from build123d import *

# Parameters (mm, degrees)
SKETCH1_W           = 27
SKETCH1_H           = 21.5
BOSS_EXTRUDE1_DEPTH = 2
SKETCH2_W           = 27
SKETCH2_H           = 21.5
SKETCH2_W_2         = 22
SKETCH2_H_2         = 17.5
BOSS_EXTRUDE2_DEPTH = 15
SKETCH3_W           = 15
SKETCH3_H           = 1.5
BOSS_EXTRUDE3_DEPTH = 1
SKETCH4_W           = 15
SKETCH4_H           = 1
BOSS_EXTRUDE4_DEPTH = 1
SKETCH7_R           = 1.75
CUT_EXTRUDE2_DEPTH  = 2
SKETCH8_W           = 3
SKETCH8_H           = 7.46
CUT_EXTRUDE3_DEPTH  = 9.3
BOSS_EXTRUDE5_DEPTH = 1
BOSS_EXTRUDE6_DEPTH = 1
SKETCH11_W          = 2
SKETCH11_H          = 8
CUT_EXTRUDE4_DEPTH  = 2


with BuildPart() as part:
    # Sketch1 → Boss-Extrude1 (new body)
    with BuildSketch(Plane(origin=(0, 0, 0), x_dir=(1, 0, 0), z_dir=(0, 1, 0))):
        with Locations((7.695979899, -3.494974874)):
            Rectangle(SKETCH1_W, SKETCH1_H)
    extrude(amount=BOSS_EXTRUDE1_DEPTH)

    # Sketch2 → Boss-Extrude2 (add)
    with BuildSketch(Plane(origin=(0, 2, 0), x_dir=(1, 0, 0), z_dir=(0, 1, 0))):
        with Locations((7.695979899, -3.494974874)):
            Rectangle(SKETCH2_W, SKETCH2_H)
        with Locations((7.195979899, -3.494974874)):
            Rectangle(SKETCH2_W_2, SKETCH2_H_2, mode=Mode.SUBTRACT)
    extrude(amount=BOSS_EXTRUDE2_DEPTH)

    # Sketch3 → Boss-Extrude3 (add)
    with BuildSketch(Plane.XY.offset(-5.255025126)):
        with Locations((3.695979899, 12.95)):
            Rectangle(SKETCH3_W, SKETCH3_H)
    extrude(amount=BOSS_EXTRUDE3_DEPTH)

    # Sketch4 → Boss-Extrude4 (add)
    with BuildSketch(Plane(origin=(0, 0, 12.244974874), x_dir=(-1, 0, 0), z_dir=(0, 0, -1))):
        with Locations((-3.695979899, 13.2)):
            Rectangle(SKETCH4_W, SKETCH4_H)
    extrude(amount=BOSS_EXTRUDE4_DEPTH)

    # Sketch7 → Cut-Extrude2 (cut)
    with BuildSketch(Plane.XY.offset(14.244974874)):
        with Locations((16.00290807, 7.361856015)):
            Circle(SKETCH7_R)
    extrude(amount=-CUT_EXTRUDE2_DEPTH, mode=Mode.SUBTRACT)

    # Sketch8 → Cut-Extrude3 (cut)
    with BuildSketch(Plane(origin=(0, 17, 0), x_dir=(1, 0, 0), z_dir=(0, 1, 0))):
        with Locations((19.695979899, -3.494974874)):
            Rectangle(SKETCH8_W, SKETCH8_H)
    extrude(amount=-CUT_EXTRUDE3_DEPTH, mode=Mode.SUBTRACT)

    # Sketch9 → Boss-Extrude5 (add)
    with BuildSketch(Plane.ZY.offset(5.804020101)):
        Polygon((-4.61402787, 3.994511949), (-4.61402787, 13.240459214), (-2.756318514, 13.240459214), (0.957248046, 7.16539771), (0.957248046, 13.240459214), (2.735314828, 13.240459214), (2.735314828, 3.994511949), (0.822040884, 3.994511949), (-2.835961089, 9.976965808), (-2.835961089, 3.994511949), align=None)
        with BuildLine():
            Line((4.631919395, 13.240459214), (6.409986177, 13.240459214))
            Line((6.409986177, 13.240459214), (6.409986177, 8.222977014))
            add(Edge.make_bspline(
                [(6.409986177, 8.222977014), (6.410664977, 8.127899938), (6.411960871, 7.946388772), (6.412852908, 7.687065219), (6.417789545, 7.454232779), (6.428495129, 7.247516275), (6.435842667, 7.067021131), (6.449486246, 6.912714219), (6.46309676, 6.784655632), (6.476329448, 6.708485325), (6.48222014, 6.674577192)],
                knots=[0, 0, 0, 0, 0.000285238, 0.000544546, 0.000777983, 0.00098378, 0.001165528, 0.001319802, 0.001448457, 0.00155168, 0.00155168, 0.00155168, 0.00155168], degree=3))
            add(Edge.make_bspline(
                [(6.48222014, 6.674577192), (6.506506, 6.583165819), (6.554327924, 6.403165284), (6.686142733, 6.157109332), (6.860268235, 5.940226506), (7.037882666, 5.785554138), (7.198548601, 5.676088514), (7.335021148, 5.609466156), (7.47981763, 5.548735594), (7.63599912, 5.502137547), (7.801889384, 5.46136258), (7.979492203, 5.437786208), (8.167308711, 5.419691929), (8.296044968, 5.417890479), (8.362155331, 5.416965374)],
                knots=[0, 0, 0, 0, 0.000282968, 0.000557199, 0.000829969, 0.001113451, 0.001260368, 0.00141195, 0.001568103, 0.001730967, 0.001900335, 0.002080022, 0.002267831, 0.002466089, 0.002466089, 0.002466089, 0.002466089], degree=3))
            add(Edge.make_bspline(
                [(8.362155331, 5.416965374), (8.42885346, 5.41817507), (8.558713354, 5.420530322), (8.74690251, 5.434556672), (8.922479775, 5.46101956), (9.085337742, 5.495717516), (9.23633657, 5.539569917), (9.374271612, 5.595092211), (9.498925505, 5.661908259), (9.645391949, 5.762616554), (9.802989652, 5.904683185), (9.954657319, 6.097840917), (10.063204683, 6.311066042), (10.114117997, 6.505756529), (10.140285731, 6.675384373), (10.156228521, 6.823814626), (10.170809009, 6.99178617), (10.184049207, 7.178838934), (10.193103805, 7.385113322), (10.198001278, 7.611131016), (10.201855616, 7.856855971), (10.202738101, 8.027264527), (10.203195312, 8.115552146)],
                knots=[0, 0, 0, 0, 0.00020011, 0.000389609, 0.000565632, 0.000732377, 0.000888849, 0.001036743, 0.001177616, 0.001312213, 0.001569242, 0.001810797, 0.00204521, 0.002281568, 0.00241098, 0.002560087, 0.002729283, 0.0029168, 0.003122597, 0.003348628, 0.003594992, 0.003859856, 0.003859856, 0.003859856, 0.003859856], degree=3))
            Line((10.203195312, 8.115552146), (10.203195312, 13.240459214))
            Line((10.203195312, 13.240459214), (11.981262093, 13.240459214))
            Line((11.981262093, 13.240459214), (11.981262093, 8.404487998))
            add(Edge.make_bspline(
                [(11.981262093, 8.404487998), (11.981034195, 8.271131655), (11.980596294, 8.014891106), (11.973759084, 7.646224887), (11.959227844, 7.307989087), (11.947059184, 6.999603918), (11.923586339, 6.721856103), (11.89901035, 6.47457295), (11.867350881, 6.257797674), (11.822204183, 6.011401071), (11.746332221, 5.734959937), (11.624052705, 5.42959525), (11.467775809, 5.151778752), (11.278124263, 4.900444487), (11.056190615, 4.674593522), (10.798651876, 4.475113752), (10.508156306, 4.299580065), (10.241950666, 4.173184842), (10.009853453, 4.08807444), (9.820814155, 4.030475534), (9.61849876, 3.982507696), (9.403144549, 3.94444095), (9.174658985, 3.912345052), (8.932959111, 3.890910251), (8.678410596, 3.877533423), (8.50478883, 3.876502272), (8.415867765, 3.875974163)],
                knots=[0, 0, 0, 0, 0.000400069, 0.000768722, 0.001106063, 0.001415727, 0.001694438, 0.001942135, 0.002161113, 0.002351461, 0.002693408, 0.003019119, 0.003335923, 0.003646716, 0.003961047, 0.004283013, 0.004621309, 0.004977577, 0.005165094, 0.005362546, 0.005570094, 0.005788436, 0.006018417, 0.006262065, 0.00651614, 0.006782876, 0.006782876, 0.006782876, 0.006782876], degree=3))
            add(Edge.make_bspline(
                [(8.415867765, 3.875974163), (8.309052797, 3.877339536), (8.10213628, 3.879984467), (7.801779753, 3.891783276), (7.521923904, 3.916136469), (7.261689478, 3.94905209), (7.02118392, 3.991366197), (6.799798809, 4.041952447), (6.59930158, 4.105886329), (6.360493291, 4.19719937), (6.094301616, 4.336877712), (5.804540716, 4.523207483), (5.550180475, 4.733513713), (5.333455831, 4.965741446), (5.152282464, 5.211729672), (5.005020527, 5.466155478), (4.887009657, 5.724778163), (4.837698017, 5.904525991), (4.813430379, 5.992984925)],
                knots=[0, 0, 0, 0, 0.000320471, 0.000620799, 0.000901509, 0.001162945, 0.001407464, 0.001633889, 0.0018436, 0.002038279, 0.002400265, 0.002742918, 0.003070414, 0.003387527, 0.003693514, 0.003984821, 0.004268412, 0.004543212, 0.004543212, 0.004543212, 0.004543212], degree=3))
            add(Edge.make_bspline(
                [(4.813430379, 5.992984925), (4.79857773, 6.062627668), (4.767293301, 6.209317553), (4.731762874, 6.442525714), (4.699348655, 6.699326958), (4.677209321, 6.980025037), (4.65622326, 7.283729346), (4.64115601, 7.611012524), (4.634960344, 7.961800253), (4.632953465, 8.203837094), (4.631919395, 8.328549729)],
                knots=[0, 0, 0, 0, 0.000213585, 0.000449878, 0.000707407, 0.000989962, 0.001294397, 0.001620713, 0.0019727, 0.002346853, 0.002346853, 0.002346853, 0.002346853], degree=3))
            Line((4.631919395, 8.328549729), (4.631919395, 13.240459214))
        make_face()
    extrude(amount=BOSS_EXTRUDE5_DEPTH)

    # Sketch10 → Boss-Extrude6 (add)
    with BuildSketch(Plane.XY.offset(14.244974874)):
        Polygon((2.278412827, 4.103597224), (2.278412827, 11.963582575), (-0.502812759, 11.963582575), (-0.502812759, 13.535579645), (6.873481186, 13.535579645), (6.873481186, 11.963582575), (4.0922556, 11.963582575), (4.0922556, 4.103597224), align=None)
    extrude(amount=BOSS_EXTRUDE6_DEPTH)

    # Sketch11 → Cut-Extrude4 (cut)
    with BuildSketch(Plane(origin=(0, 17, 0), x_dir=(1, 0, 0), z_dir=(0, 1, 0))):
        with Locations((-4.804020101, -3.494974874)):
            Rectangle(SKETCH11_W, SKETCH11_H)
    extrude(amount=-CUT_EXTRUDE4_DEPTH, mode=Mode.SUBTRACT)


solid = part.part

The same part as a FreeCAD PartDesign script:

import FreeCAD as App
import Part
import Sketcher
from FreeCAD import Vector
Q = App.Units.Quantity

doc = App.newDocument("Part")
params = doc.addObject("Spreadsheet::Sheet", "Params")
for row, (alias, value) in enumerate([
    ("sketch1_width", "27 mm"),
    ("sketch1_height", "21.5 mm"),
    ("pad1_length", "2 mm"),
    ("sketch2_width", "27 mm"),
    ("sketch2_width2", "22 mm"),
    ("sketch2_height", "21.5 mm"),
    ("sketch2_height2", "17.5 mm"),
    ("pad2_length", "15 mm"),
    ("sketch3_width", "15 mm"),
    ("sketch3_height", "1.5 mm"),
    ("pad3_length", "1 mm"),
    ("sketch4_width", "15 mm"),
    ("sketch4_height", "1 mm"),
    ("pad4_length", "1 mm"),
    ("sketch5_diameter", "3.5 mm"),
    ("pocket1_length", "2 mm"),
    ("sketch6_width", "3 mm"),
    ("sketch6_height", "7.46 mm"),
    ("pocket2_length", "9.3 mm"),
    ("pad5_length", "1 mm"),
    ("pad6_length", "1 mm"),
    ("sketch9_width", "2 mm"),
    ("sketch9_height", "8 mm"),
    ("pocket3_length", "2 mm"),
], start=1):
    params.set(f"A{row}", alias)
    params.set(f"B{row}", "=" + value)
    params.setAlias(f"B{row}", alias)

body = doc.addObject("PartDesign::Body", "Body")

# Sketch on XZ plane
sketch1 = body.newObject("Sketcher::SketchObject", "Sketch")
sketch1.AttachmentSupport = (doc.getObject("XZ_Plane"), [""])
sketch1.MapMode = "FlatFace"
sketch1.addGeometry([
    Part.LineSegment(Vector(-6, -7, 0), Vector(-6, 14, 0)),
    Part.LineSegment(Vector(-6, 14, 0), Vector(21, 14, 0)),
    Part.LineSegment(Vector(21, 14, 0), Vector(21, -7, 0)),
    Part.LineSegment(Vector(21, -7, 0), Vector(-6, -7, 0)),
], False)
sketch1.addConstraint([
    Sketcher.Constraint("Coincident", 0, 2, 1, 1),
    Sketcher.Constraint("Coincident", 1, 2, 2, 1),
    Sketcher.Constraint("Coincident", 2, 2, 3, 1),
    Sketcher.Constraint("Coincident", 3, 2, 0, 1),
    Sketcher.Constraint("Vertical", 0),
    Sketcher.Constraint("Horizontal", 1),
    Sketcher.Constraint("Vertical", 2),
    Sketcher.Constraint("Horizontal", 3),
    Sketcher.Constraint("DistanceX", 1, 1, 1, 2, Q("27 mm")),
    Sketcher.Constraint("DistanceY", 0, 1, 0, 2, Q("21.5 mm")),
    Sketcher.Constraint("DistanceX", 0, 2, -1, 1, Q("5.80402 mm")),
    Sketcher.Constraint("DistanceY", -1, 1, 0, 2, Q("14.244975 mm")),
])
sketch1.setExpression("Constraints[8]", "Params.sketch1_width")
sketch1.setExpression("Constraints[9]", "Params.sketch1_height")
pad1 = body.newObject("PartDesign::Pad", "Pad")
pad1.Profile = sketch1
pad1.setExpression("Length", "Params.pad1_length")
pad1.Reversed = True

# Sketch on XZ plane
sketch2 = body.newObject("Sketcher::SketchObject", "Sketch001")
sketch2.AttachmentSupport = (doc.getObject("XZ_Plane"), [""])
sketch2.MapMode = "FlatFace"
sketch2.AttachmentOffset = App.Placement(Vector(0, 0, -2), App.Rotation())
sketch2.addGeometry([
    Part.LineSegment(Vector(-6, -7, 0), Vector(-6, 14, 0)),  # 0
    Part.LineSegment(Vector(-6, 14, 0), Vector(21, 14, 0)),  # 1
    Part.LineSegment(Vector(21, 14, 0), Vector(21, -7, 0)),  # 2
    Part.LineSegment(Vector(21, -7, 0), Vector(-6, -7, 0)),  # 3
    Part.LineSegment(Vector(18, 12, 0), Vector(-4, 12, 0)),  # 4
    Part.LineSegment(Vector(-4, 12, 0), Vector(-4, -5, 0)),  # 5
    Part.LineSegment(Vector(-4, -5, 0), Vector(18, -5, 0)),  # 6
    Part.LineSegment(Vector(18, -5, 0), Vector(18, 12, 0)),  # 7
], False)
sketch2.addConstraint([
    Sketcher.Constraint("Coincident", 0, 2, 1, 1),
    Sketcher.Constraint("Coincident", 1, 2, 2, 1),
    Sketcher.Constraint("Coincident", 2, 2, 3, 1),
    Sketcher.Constraint("Coincident", 3, 2, 0, 1),
    Sketcher.Constraint("Coincident", 4, 2, 5, 1),
    Sketcher.Constraint("Coincident", 5, 2, 6, 1),
    Sketcher.Constraint("Coincident", 6, 2, 7, 1),
    Sketcher.Constraint("Coincident", 7, 2, 4, 1),
    Sketcher.Constraint("Vertical", 0),
    Sketcher.Constraint("Horizontal", 1),
    Sketcher.Constraint("Vertical", 2),
    Sketcher.Constraint("Horizontal", 3),
    Sketcher.Constraint("Horizontal", 4),
    Sketcher.Constraint("Vertical", 5),
    Sketcher.Constraint("Horizontal", 6),
    Sketcher.Constraint("Vertical", 7),
    Sketcher.Constraint("DistanceX", 1, 1, 1, 2, Q("27 mm")),
    Sketcher.Constraint("DistanceX", 4, 2, 4, 1, Q("22 mm")),
    Sketcher.Constraint("DistanceY", 0, 1, 0, 2, Q("21.5 mm")),
    Sketcher.Constraint("DistanceY", 5, 2, 5, 1, Q("17.5 mm")),
    Sketcher.Constraint("DistanceX", 0, 2, 4, 2, Q("2 mm")),
    Sketcher.Constraint("DistanceY", 4, 2, 0, 2, Q("2 mm")),
    Sketcher.Constraint("DistanceX", 0, 2, -1, 1, Q("5.80402 mm")),
    Sketcher.Constraint("DistanceY", -1, 1, 0, 2, Q("14.244975 mm")),
])
sketch2.setExpression("Constraints[16]", "Params.sketch2_width")
sketch2.setExpression("Constraints[17]", "Params.sketch2_width2")
sketch2.setExpression("Constraints[18]", "Params.sketch2_height")
sketch2.setExpression("Constraints[19]", "Params.sketch2_height2")
pad2 = body.newObject("PartDesign::Pad", "Pad001")
pad2.Profile = sketch2
pad2.setExpression("Length", "Params.pad2_length")
pad2.Reversed = True

# Sketch on XY plane
sketch3 = body.newObject("Sketcher::SketchObject", "Sketch002")
sketch3.AttachmentSupport = (doc.getObject("XY_Plane"), [""])
sketch3.MapMode = "FlatFace"
sketch3.AttachmentOffset = App.Placement(Vector(0, 0, -5.255025), App.Rotation())
sketch3.addGeometry([
    Part.LineSegment(Vector(-3.8, 13.7, 0), Vector(-3.8, 12.2, 0)),
    Part.LineSegment(Vector(-3.8, 12.2, 0), Vector(11.2, 12.2, 0)),
    Part.LineSegment(Vector(11.2, 12.2, 0), Vector(11.2, 13.7, 0)),
    Part.LineSegment(Vector(11.2, 13.7, 0), Vector(-3.8, 13.7, 0)),
], False)
sketch3.addConstraint([
    Sketcher.Constraint("Coincident", 0, 2, 1, 1),
    Sketcher.Constraint("Coincident", 1, 2, 2, 1),
    Sketcher.Constraint("Coincident", 2, 2, 3, 1),
    Sketcher.Constraint("Coincident", 3, 2, 0, 1),
    Sketcher.Constraint("Vertical", 0),
    Sketcher.Constraint("Horizontal", 1),
    Sketcher.Constraint("Vertical", 2),
    Sketcher.Constraint("Horizontal", 3),
    Sketcher.Constraint("DistanceX", 1, 1, 1, 2, Q("15 mm")),
    Sketcher.Constraint("DistanceY", 0, 2, 0, 1, Q("1.5 mm")),
    Sketcher.Constraint("DistanceY", -1, 1, 0, 2, Q("12.2 mm")),
    Sketcher.Constraint("DistanceX", 0, 2, -1, 1, Q("3.80402 mm")),
])
sketch3.setExpression("Constraints[8]", "Params.sketch3_width")
sketch3.setExpression("Constraints[9]", "Params.sketch3_height")
pad3 = body.newObject("PartDesign::Pad", "Pad002")
pad3.Profile = sketch3
pad3.setExpression("Length", "Params.pad3_length")

# Sketch on XY plane
sketch4 = body.newObject("Sketcher::SketchObject", "Sketch003")
sketch4.AttachmentSupport = (doc.getObject("XY_Plane"), [""])
sketch4.MapMode = "FlatFace"
sketch4.AttachmentOffset = App.Placement(Vector(0, 0, 12.244975), App.Rotation())
sketch4.addGeometry([
    Part.LineSegment(Vector(11.2, 13.7, 0), Vector(11.2, 12.7, 0)),
    Part.LineSegment(Vector(11.2, 12.7, 0), Vector(-3.8, 12.7, 0)),
    Part.LineSegment(Vector(-3.8, 12.7, 0), Vector(-3.8, 13.7, 0)),
    Part.LineSegment(Vector(-3.8, 13.7, 0), Vector(11.2, 13.7, 0)),
], False)
sketch4.addConstraint([
    Sketcher.Constraint("Coincident", 0, 2, 1, 1),
    Sketcher.Constraint("Coincident", 1, 2, 2, 1),
    Sketcher.Constraint("Coincident", 2, 2, 3, 1),
    Sketcher.Constraint("Coincident", 3, 2, 0, 1),
    Sketcher.Constraint("Vertical", 0),
    Sketcher.Constraint("Horizontal", 1),
    Sketcher.Constraint("Vertical", 2),
    Sketcher.Constraint("Horizontal", 3),
    Sketcher.Constraint("DistanceX", 1, 2, 1, 1, Q("15 mm")),
    Sketcher.Constraint("DistanceY", 0, 2, 0, 1, Q("1 mm")),
    Sketcher.Constraint("DistanceY", -1, 1, 0, 2, Q("12.7 mm")),
    Sketcher.Constraint("DistanceX", -1, 1, 0, 2, Q("11.19598 mm")),
])
sketch4.setExpression("Constraints[8]", "Params.sketch4_width")
sketch4.setExpression("Constraints[9]", "Params.sketch4_height")
pad4 = body.newObject("PartDesign::Pad", "Pad003")
pad4.Profile = sketch4
pad4.setExpression("Length", "Params.pad4_length")
pad4.Reversed = True

# Sketch on XY plane
sketch5 = body.newObject("Sketcher::SketchObject", "Sketch004")
sketch5.AttachmentSupport = (doc.getObject("XY_Plane"), [""])
sketch5.MapMode = "FlatFace"
sketch5.AttachmentOffset = App.Placement(Vector(0, 0, 14.244975), App.Rotation())
sketch5.addGeometry(Part.Circle(Vector(16, 7.4, 0), Vector(0, 0, 1), 1.8), False)
sketch5.addConstraint([
    Sketcher.Constraint("Diameter", 0, Q("3.5 mm")),
    Sketcher.Constraint("DistanceX", -1, 1, 0, 3, Q("16.002908 mm")),
    Sketcher.Constraint("DistanceY", -1, 1, 0, 3, Q("7.361856 mm")),
])
sketch5.setExpression("Constraints[0]", "Params.sketch5_diameter")
pocket1 = body.newObject("PartDesign::Pocket", "Pocket")
pocket1.Profile = sketch5
pocket1.setExpression("Length", "Params.pocket1_length")

# Sketch on XZ plane
sketch6 = body.newObject("Sketcher::SketchObject", "Sketch005")
sketch6.AttachmentSupport = (doc.getObject("XZ_Plane"), [""])
sketch6.MapMode = "FlatFace"
sketch6.AttachmentOffset = App.Placement(Vector(0, 0, -17), App.Rotation())
sketch6.addGeometry([
    Part.LineSegment(Vector(18.2, -0.2, 0), Vector(18.2, 7.2, 0)),
    Part.LineSegment(Vector(18.2, 7.2, 0), Vector(21.2, 7.2, 0)),
    Part.LineSegment(Vector(21.2, 7.2, 0), Vector(21.2, -0.2, 0)),
    Part.LineSegment(Vector(21.2, -0.2, 0), Vector(18.2, -0.2, 0)),
], False)
sketch6.addConstraint([
    Sketcher.Constraint("Coincident", 0, 2, 1, 1),
    Sketcher.Constraint("Coincident", 1, 2, 2, 1),
    Sketcher.Constraint("Coincident", 2, 2, 3, 1),
    Sketcher.Constraint("Coincident", 3, 2, 0, 1),
    Sketcher.Constraint("Vertical", 0),
    Sketcher.Constraint("Horizontal", 1),
    Sketcher.Constraint("Vertical", 2),
    Sketcher.Constraint("Horizontal", 3),
    Sketcher.Constraint("DistanceX", 1, 1, 1, 2, Q("3 mm")),
    Sketcher.Constraint("DistanceY", 0, 1, 0, 2, Q("7.46 mm")),
    Sketcher.Constraint("DistanceX", -1, 1, 0, 2, Q("18.19598 mm")),
    Sketcher.Constraint("DistanceY", -1, 1, 0, 2, Q("7.224975 mm")),
])
sketch6.setExpression("Constraints[8]", "Params.sketch6_width")
sketch6.setExpression("Constraints[9]", "Params.sketch6_height")
pocket2 = body.newObject("PartDesign::Pocket", "Pocket001")
pocket2.Profile = sketch6
pocket2.setExpression("Length", "Params.pocket2_length")
pocket2.Reversed = True

# Sketch on YZ plane
sketch7 = body.newObject("Sketcher::SketchObject", "Sketch006")
sketch7.AttachmentSupport = (doc.getObject("YZ_Plane"), [""])
sketch7.MapMode = "FlatFace"
sketch7.AttachmentOffset = App.Placement(Vector(0, 0, -5.80402), App.Rotation())
sketch7.addGeometry([
    Part.LineSegment(Vector(13.240459, -4.614028, 0), Vector(3.994512, -4.614028, 0)),  # 0
    Part.LineSegment(Vector(3.994512, -4.614028, 0), Vector(3.994512, -2.835961, 0)),  # 1
    Part.LineSegment(Vector(3.994512, -2.835961, 0), Vector(9.976966, -2.835961, 0)),  # 2
    Part.LineSegment(Vector(9.976966, -2.835961, 0), Vector(3.994512, 0.822041, 0)),  # 3
    Part.LineSegment(Vector(3.994512, 0.822041, 0), Vector(3.994512, 2.735315, 0)),  # 4
    Part.LineSegment(Vector(3.994512, 2.735315, 0), Vector(13.240459, 2.735315, 0)),  # 5
    Part.LineSegment(Vector(13.240459, 2.735315, 0), Vector(13.240459, 0.957248, 0)),  # 6
    Part.LineSegment(Vector(13.240459, 0.957248, 0), Vector(7.165398, 0.957248, 0)),  # 7
    Part.LineSegment(Vector(7.165398, 0.957248, 0), Vector(13.240459, -2.756319, 0)),  # 8
    Part.LineSegment(Vector(13.240459, -2.756319, 0), Vector(13.240459, -4.614028, 0)),  # 9
    Part.LineSegment(Vector(13.240459, 6.409986, 0), Vector(13.240459, 4.631919, 0)),  # 10
    Part.LineSegment(Vector(13.240459, 4.631919, 0), Vector(8.32855, 4.631919, 0)),  # 11
    Part.BSplineCurve([Vector(5.992985, 4.81343, 0), Vector(6.062628, 4.798578, 0), Vector(6.209318, 4.767293, 0), Vector(6.442526, 4.731763, 0), Vector(6.699327, 4.699349, 0), Vector(6.980025, 4.677209, 0), Vector(7.283729, 4.656223, 0), Vector(7.611013, 4.641156, 0), Vector(7.9618, 4.63496, 0), Vector(8.203837, 4.632953, 0), Vector(8.32855, 4.631919, 0)], [4, 1, 1, 1, 1, 1, 1, 1, 4], [0, 0.000213585, 0.000449878, 0.000707407, 0.000989962, 0.001294397, 0.001620713, 0.0019727, 0.002346853], False, 3, [1, 1, 1, 1, 1, 1, 1, 1, 1, 1, 1], False),  # 12
    Part.BSplineCurve([Vector(3.875974, 8.415868, 0), Vector(3.87734, 8.309053, 0), Vector(3.879984, 8.102136, 0), Vector(3.891783, 7.80178, 0), Vector(3.916136, 7.521924, 0), Vector(3.949052, 7.261689, 0), Vector(3.991366, 7.021184, 0), Vector(4.041952, 6.799799, 0), Vector(4.105886, 6.599302, 0), Vector(4.197199, 6.360493, 0), Vector(4.336878, 6.094302, 0), Vector(4.523207, 5.804541, 0), Vector(4.733514, 5.55018, 0), Vector(4.965741, 5.333456, 0), Vector(5.21173, 5.152282, 0), Vector(5.466155, 5.005021, 0), Vector(5.724778, 4.88701, 0), Vector(5.904526, 4.837698, 0), Vector(5.992985, 4.81343, 0)], [4, 1, 1, 1, 1, 1, 1, 1, 1, 1, 1, 1, 1, 1, 1, 1, 4], [0, 0.000320471, 0.000620799, 0.000901509, 0.001162945, 0.001407464, 0.001633889, 0.0018436, 0.002038279, 0.002400265, 0.002742918, 0.003070414, 0.003387527, 0.003693514, 0.003984821, 0.004268412, 0.004543212], False, 3, [1, 1, 1, 1, 1, 1, 1, 1, 1, 1, 1, 1, 1, 1, 1, 1, 1, 1, 1], False),  # 13
    Part.BSplineCurve([Vector(8.404488, 11.981262, 0), Vector(8.271132, 11.981034, 0), Vector(8.014891, 11.980596, 0), Vector(7.646225, 11.973759, 0), Vector(7.307989, 11.959228, 0), Vector(6.999604, 11.947059, 0), Vector(6.721856, 11.923586, 0), Vector(6.474573, 11.89901, 0), Vector(6.257798, 11.867351, 0), Vector(6.011401, 11.822204, 0), Vector(5.73496, 11.746332, 0), Vector(5.429595, 11.624053, 0), Vector(5.151779, 11.467776, 0), Vector(4.900444, 11.278124, 0), Vector(4.674594, 11.056191, 0), Vector(4.475114, 10.798652, 0), Vector(4.29958, 10.508156, 0), Vector(4.173185, 10.241951, 0), Vector(4.088074, 10.009853, 0), Vector(4.030476, 9.820814, 0), Vector(3.982508, 9.618499, 0), Vector(3.944441, 9.403145, 0), Vector(3.912345, 9.174659, 0), Vector(3.89091, 8.932959, 0), Vector(3.877533, 8.678411, 0), Vector(3.876502, 8.504789, 0), Vector(3.875974, 8.415868, 0)], [4, 1, 1, 1, 1, 1, 1, 1, 1, 1, 1, 1, 1, 1, 1, 1, 1, 1, 1, 1, 1, 1, 1, 1, 4], [0, 0.000400069, 0.000768722, 0.001106063, 0.001415727, 0.001694438, 0.001942135, 0.002161113, 0.002351461, 0.002693408, 0.003019119, 0.003335923, 0.003646716, 0.003961047, 0.004283013, 0.004621309, 0.004977577, 0.005165094, 0.005362546, 0.005570094, 0.005788436, 0.006018417, 0.006262065, 0.00651614, 0.006782876], False, 3, [1, 1, 1, 1, 1, 1, 1, 1, 1, 1, 1, 1, 1, 1, 1, 1, 1, 1, 1, 1, 1, 1, 1, 1, 1, 1, 1], False),  # 14
    Part.LineSegment(Vector(8.404488, 11.981262, 0), Vector(13.240459, 11.981262, 0)),  # 15
    Part.LineSegment(Vector(13.240459, 11.981262, 0), Vector(13.240459, 10.203195, 0)),  # 16
    Part.LineSegment(Vector(13.240459, 10.203195, 0), Vector(8.115552, 10.203195, 0)),  # 17
    Part.BSplineCurve([Vector(5.416965, 8.362155, 0), Vector(5.418175, 8.428853, 0), Vector(5.42053, 8.558713, 0), Vector(5.434557, 8.746903, 0), Vector(5.46102, 8.92248, 0), Vector(5.495718, 9.085338, 0), Vector(5.53957, 9.236337, 0), Vector(5.595092, 9.374272, 0), Vector(5.661908, 9.498926, 0), Vector(5.762617, 9.645392, 0), Vector(5.904683, 9.80299, 0), Vector(6.097841, 9.954657, 0), Vector(6.311066, 10.063205, 0), Vector(6.505757, 10.114118, 0), Vector(6.675384, 10.140286, 0), Vector(6.823815, 10.156229, 0), Vector(6.991786, 10.170809, 0), Vector(7.178839, 10.184049, 0), Vector(7.385113, 10.193104, 0), Vector(7.611131, 10.198001, 0), Vector(7.856856, 10.201856, 0), Vector(8.027265, 10.202738, 0), Vector(8.115552, 10.203195, 0)], [4, 1, 1, 1, 1, 1, 1, 1, 1, 1, 1, 1, 1, 1, 1, 1, 1, 1, 1, 1, 4], [0, 0.00020011, 0.000389609, 0.000565632, 0.000732377, 0.000888849, 0.001036743, 0.001177616, 0.001312213, 0.001569242, 0.001810797, 0.00204521, 0.002281568, 0.00241098, 0.002560087, 0.002729283, 0.0029168, 0.003122597, 0.003348628, 0.003594992, 0.003859856], False, 3, [1, 1, 1, 1, 1, 1, 1, 1, 1, 1, 1, 1, 1, 1, 1, 1, 1, 1, 1, 1, 1, 1, 1], False),  # 18
    Part.BSplineCurve([Vector(6.674577, 6.48222, 0), Vector(6.583166, 6.506506, 0), Vector(6.403165, 6.554328, 0), Vector(6.157109, 6.686143, 0), Vector(5.940227, 6.860268, 0), Vector(5.785554, 7.037883, 0), Vector(5.676089, 7.198549, 0), Vector(5.609466, 7.335021, 0), Vector(5.548736, 7.479818, 0), Vector(5.502138, 7.635999, 0), Vector(5.461363, 7.801889, 0), Vector(5.437786, 7.979492, 0), Vector(5.419692, 8.167309, 0), Vector(5.41789, 8.296045, 0), Vector(5.416965, 8.362155, 0)], [4, 1, 1, 1, 1, 1, 1, 1, 1, 1, 1, 1, 4], [0, 0.000282968, 0.000557199, 0.000829969, 0.001113451, 0.001260368, 0.00141195, 0.001568103, 0.001730967, 0.001900335, 0.002080022, 0.002267831, 0.002466089], False, 3, [1, 1, 1, 1, 1, 1, 1, 1, 1, 1, 1, 1, 1, 1, 1], False),  # 19
    Part.BSplineCurve([Vector(8.222977, 6.409986, 0), Vector(8.1279, 6.410665, 0), Vector(7.946389, 6.411961, 0), Vector(7.687065, 6.412853, 0), Vector(7.454233, 6.41779, 0), Vector(7.247516, 6.428495, 0), Vector(7.067021, 6.435843, 0), Vector(6.912714, 6.449486, 0), Vector(6.784656, 6.463097, 0), Vector(6.708485, 6.476329, 0), Vector(6.674577, 6.48222, 0)], [4, 1, 1, 1, 1, 1, 1, 1, 4], [0, 0.000285238, 0.000544546, 0.000777983, 0.00098378, 0.001165528, 0.001319802, 0.001448457, 0.00155168], False, 3, [1, 1, 1, 1, 1, 1, 1, 1, 1, 1, 1], False),  # 20
    Part.LineSegment(Vector(8.222977, 6.409986, 0), Vector(13.240459, 6.409986, 0)),  # 21
], False)
sketch7.addConstraint([
    Sketcher.Constraint("Block", 12),
    Sketcher.Constraint("Block", 13),
    Sketcher.Constraint("Block", 14),
    Sketcher.Constraint("Block", 18),
    Sketcher.Constraint("Block", 19),
    Sketcher.Constraint("Block", 20),
    Sketcher.Constraint("Coincident", 0, 2, 1, 1),
    Sketcher.Constraint("Coincident", 1, 2, 2, 1),
    Sketcher.Constraint("Coincident", 2, 2, 3, 1),
    Sketcher.Constraint("Coincident", 3, 2, 4, 1),
    Sketcher.Constraint("Coincident", 4, 2, 5, 1),
    Sketcher.Constraint("Coincident", 5, 2, 6, 1),
    Sketcher.Constraint("Coincident", 6, 2, 7, 1),
    Sketcher.Constraint("Coincident", 7, 2, 8, 1),
    Sketcher.Constraint("Coincident", 8, 2, 9, 1),
    Sketcher.Constraint("Coincident", 9, 2, 0, 1),
    Sketcher.Constraint("Coincident", 10, 2, 11, 1),
    Sketcher.Constraint("Coincident", 11, 2, 12, 2),
    Sketcher.Constraint("Coincident", 14, 1, 15, 1),
    Sketcher.Constraint("Coincident", 15, 2, 16, 1),
    Sketcher.Constraint("Coincident", 16, 2, 17, 1),
    Sketcher.Constraint("Coincident", 17, 2, 18, 2),
    Sketcher.Constraint("Coincident", 20, 1, 21, 1),
    Sketcher.Constraint("Coincident", 21, 2, 10, 1),
    Sketcher.Constraint("Horizontal", 0),
    Sketcher.Constraint("Vertical", 1),
    Sketcher.Constraint("Horizontal", 2),
    Sketcher.Constraint("Vertical", 4),
    Sketcher.Constraint("Horizontal", 5),
    Sketcher.Constraint("Vertical", 6),
    Sketcher.Constraint("Horizontal", 7),
    Sketcher.Constraint("Vertical", 9),
    Sketcher.Constraint("Vertical", 10),
    Sketcher.Constraint("Horizontal", 11),
    Sketcher.Constraint("Horizontal", 15),
    Sketcher.Constraint("Vertical", 16),
    Sketcher.Constraint("Horizontal", 17),
    Sketcher.Constraint("Horizontal", 21),
    Sketcher.Constraint("DistanceY", 1, 2, 3, 2, Q("3.658002 mm")),
    Sketcher.Constraint("DistanceX", 7, 2, 7, 1, Q("6.075062 mm")),
    Sketcher.Constraint("DistanceX", 11, 2, 11, 1, Q("4.911909 mm")),
    Sketcher.Constraint("DistanceX", 15, 1, 15, 2, Q("4.835971 mm")),
    Sketcher.Constraint("DistanceY", 9, 2, 9, 1, Q("1.857709 mm")),
    Sketcher.Constraint("Distance", 8, Q("7.120179 mm")),
    Sketcher.Constraint("DistanceX", 0, 2, 0, 1, Q("9.245947 mm")),
    Sketcher.Constraint("DistanceX", 2, 1, 2, 2, Q("5.982454 mm")),
    Sketcher.Constraint("DistanceX", 5, 1, 5, 2, Q("9.245947 mm")),
    Sketcher.Constraint("DistanceY", 1, 1, 1, 2, Q("1.778067 mm")),
    Sketcher.Constraint("DistanceY", 4, 1, 4, 2, Q("1.913274 mm")),
    Sketcher.Constraint("DistanceY", 6, 2, 6, 1, Q("1.778067 mm")),
    Sketcher.Constraint("DistanceX", -1, 1, 0, 2, Q("3.994512 mm")),
    Sketcher.Constraint("DistanceY", 1, 2, -1, 1, Q("2.835961 mm")),
])
pad5 = body.newObject("PartDesign::Pad", "Pad004")
pad5.Profile = sketch7
pad5.setExpression("Length", "Params.pad5_length")
pad5.Reversed = True

# Sketch on XY plane
sketch8 = body.newObject("Sketcher::SketchObject", "Sketch007")
sketch8.AttachmentSupport = (doc.getObject("XY_Plane"), [""])
sketch8.MapMode = "FlatFace"
sketch8.AttachmentOffset = App.Placement(Vector(0, 0, 14.244975), App.Rotation())
sketch8.addGeometry([
    Part.LineSegment(Vector(2.3, 12, 0), Vector(2.3, 4.1, 0)),  # 0
    Part.LineSegment(Vector(2.3, 4.1, 0), Vector(4.1, 4.1, 0)),  # 1
    Part.LineSegment(Vector(4.1, 4.1, 0), Vector(4.1, 12, 0)),  # 2
    Part.LineSegment(Vector(4.1, 12, 0), Vector(6.9, 12, 0)),  # 3
    Part.LineSegment(Vector(6.9, 12, 0), Vector(6.9, 13.5, 0)),  # 4
    Part.LineSegment(Vector(6.9, 13.5, 0), Vector(-0.5, 13.5, 0)),  # 5
    Part.LineSegment(Vector(-0.5, 13.5, 0), Vector(-0.5, 12, 0)),  # 6
    Part.LineSegment(Vector(-0.5, 12, 0), Vector(2.3, 12, 0)),  # 7
], False)
sketch8.addConstraint([
    Sketcher.Constraint("Coincident", 0, 2, 1, 1),
    Sketcher.Constraint("Coincident", 1, 2, 2, 1),
    Sketcher.Constraint("Coincident", 2, 2, 3, 1),
    Sketcher.Constraint("Coincident", 3, 2, 4, 1),
    Sketcher.Constraint("Coincident", 4, 2, 5, 1),
    Sketcher.Constraint("Coincident", 5, 2, 6, 1),
    Sketcher.Constraint("Coincident", 6, 2, 7, 1),
    Sketcher.Constraint("Coincident", 7, 2, 0, 1),
    Sketcher.Constraint("Vertical", 0),
    Sketcher.Constraint("Horizontal", 1),
    Sketcher.Constraint("Vertical", 2),
    Sketcher.Constraint("Horizontal", 3),
    Sketcher.Constraint("Vertical", 4),
    Sketcher.Constraint("Horizontal", 5),
    Sketcher.Constraint("Vertical", 6),
    Sketcher.Constraint("Horizontal", 7),
    Sketcher.Constraint("Horizontal", 3, 2, 6, 2),
    Sketcher.Constraint("Equal", 3, 7),
    Sketcher.Constraint("DistanceX", 1, 1, 1, 2, Q("1.813843 mm")),
    Sketcher.Constraint("DistanceX", 3, 1, 3, 2, Q("2.781226 mm")),
    Sketcher.Constraint("DistanceY", 0, 2, 0, 1, Q("7.859985 mm")),
    Sketcher.Constraint("DistanceY", 4, 1, 4, 2, Q("1.571997 mm")),
    Sketcher.Constraint("DistanceX", -1, 1, 3, 2, Q("6.873481 mm")),
    Sketcher.Constraint("DistanceY", -1, 1, 4, 2, Q("13.53558 mm")),
])
pad6 = body.newObject("PartDesign::Pad", "Pad005")
pad6.Profile = sketch8
pad6.setExpression("Length", "Params.pad6_length")

# Sketch on XZ plane
sketch9 = body.newObject("Sketcher::SketchObject", "Sketch008")
sketch9.AttachmentSupport = (doc.getObject("XZ_Plane"), [""])
sketch9.MapMode = "FlatFace"
sketch9.AttachmentOffset = App.Placement(Vector(0, 0, -17), App.Rotation())
sketch9.addGeometry([
    Part.LineSegment(Vector(-5.8, -0.5, 0), Vector(-5.8, 7.5, 0)),
    Part.LineSegment(Vector(-5.8, 7.5, 0), Vector(-3.8, 7.5, 0)),
    Part.LineSegment(Vector(-3.8, 7.5, 0), Vector(-3.8, -0.5, 0)),
    Part.LineSegment(Vector(-3.8, -0.5, 0), Vector(-5.8, -0.5, 0)),
], False)
sketch9.addConstraint([
    Sketcher.Constraint("Coincident", 0, 2, 1, 1),
    Sketcher.Constraint("Coincident", 1, 2, 2, 1),
    Sketcher.Constraint("Coincident", 2, 2, 3, 1),
    Sketcher.Constraint("Coincident", 3, 2, 0, 1),
    Sketcher.Constraint("Vertical", 0),
    Sketcher.Constraint("Horizontal", 1),
    Sketcher.Constraint("Vertical", 2),
    Sketcher.Constraint("Horizontal", 3),
    Sketcher.Constraint("DistanceX", 1, 1, 1, 2, Q("2 mm")),
    Sketcher.Constraint("DistanceY", 0, 1, 0, 2, Q("8 mm")),
    Sketcher.Constraint("DistanceX", 0, 2, -1, 1, Q("5.80402 mm")),
    Sketcher.Constraint("DistanceY", -1, 1, 0, 2, Q("7.494975 mm")),
])
sketch9.setExpression("Constraints[8]", "Params.sketch9_width")
sketch9.setExpression("Constraints[9]", "Params.sketch9_height")
pocket3 = body.newObject("PartDesign::Pocket", "Pocket002")
pocket3.Profile = sketch9
pocket3.setExpression("Length", "Params.pocket3_length")
pocket3.Reversed = True

doc.recompute()
